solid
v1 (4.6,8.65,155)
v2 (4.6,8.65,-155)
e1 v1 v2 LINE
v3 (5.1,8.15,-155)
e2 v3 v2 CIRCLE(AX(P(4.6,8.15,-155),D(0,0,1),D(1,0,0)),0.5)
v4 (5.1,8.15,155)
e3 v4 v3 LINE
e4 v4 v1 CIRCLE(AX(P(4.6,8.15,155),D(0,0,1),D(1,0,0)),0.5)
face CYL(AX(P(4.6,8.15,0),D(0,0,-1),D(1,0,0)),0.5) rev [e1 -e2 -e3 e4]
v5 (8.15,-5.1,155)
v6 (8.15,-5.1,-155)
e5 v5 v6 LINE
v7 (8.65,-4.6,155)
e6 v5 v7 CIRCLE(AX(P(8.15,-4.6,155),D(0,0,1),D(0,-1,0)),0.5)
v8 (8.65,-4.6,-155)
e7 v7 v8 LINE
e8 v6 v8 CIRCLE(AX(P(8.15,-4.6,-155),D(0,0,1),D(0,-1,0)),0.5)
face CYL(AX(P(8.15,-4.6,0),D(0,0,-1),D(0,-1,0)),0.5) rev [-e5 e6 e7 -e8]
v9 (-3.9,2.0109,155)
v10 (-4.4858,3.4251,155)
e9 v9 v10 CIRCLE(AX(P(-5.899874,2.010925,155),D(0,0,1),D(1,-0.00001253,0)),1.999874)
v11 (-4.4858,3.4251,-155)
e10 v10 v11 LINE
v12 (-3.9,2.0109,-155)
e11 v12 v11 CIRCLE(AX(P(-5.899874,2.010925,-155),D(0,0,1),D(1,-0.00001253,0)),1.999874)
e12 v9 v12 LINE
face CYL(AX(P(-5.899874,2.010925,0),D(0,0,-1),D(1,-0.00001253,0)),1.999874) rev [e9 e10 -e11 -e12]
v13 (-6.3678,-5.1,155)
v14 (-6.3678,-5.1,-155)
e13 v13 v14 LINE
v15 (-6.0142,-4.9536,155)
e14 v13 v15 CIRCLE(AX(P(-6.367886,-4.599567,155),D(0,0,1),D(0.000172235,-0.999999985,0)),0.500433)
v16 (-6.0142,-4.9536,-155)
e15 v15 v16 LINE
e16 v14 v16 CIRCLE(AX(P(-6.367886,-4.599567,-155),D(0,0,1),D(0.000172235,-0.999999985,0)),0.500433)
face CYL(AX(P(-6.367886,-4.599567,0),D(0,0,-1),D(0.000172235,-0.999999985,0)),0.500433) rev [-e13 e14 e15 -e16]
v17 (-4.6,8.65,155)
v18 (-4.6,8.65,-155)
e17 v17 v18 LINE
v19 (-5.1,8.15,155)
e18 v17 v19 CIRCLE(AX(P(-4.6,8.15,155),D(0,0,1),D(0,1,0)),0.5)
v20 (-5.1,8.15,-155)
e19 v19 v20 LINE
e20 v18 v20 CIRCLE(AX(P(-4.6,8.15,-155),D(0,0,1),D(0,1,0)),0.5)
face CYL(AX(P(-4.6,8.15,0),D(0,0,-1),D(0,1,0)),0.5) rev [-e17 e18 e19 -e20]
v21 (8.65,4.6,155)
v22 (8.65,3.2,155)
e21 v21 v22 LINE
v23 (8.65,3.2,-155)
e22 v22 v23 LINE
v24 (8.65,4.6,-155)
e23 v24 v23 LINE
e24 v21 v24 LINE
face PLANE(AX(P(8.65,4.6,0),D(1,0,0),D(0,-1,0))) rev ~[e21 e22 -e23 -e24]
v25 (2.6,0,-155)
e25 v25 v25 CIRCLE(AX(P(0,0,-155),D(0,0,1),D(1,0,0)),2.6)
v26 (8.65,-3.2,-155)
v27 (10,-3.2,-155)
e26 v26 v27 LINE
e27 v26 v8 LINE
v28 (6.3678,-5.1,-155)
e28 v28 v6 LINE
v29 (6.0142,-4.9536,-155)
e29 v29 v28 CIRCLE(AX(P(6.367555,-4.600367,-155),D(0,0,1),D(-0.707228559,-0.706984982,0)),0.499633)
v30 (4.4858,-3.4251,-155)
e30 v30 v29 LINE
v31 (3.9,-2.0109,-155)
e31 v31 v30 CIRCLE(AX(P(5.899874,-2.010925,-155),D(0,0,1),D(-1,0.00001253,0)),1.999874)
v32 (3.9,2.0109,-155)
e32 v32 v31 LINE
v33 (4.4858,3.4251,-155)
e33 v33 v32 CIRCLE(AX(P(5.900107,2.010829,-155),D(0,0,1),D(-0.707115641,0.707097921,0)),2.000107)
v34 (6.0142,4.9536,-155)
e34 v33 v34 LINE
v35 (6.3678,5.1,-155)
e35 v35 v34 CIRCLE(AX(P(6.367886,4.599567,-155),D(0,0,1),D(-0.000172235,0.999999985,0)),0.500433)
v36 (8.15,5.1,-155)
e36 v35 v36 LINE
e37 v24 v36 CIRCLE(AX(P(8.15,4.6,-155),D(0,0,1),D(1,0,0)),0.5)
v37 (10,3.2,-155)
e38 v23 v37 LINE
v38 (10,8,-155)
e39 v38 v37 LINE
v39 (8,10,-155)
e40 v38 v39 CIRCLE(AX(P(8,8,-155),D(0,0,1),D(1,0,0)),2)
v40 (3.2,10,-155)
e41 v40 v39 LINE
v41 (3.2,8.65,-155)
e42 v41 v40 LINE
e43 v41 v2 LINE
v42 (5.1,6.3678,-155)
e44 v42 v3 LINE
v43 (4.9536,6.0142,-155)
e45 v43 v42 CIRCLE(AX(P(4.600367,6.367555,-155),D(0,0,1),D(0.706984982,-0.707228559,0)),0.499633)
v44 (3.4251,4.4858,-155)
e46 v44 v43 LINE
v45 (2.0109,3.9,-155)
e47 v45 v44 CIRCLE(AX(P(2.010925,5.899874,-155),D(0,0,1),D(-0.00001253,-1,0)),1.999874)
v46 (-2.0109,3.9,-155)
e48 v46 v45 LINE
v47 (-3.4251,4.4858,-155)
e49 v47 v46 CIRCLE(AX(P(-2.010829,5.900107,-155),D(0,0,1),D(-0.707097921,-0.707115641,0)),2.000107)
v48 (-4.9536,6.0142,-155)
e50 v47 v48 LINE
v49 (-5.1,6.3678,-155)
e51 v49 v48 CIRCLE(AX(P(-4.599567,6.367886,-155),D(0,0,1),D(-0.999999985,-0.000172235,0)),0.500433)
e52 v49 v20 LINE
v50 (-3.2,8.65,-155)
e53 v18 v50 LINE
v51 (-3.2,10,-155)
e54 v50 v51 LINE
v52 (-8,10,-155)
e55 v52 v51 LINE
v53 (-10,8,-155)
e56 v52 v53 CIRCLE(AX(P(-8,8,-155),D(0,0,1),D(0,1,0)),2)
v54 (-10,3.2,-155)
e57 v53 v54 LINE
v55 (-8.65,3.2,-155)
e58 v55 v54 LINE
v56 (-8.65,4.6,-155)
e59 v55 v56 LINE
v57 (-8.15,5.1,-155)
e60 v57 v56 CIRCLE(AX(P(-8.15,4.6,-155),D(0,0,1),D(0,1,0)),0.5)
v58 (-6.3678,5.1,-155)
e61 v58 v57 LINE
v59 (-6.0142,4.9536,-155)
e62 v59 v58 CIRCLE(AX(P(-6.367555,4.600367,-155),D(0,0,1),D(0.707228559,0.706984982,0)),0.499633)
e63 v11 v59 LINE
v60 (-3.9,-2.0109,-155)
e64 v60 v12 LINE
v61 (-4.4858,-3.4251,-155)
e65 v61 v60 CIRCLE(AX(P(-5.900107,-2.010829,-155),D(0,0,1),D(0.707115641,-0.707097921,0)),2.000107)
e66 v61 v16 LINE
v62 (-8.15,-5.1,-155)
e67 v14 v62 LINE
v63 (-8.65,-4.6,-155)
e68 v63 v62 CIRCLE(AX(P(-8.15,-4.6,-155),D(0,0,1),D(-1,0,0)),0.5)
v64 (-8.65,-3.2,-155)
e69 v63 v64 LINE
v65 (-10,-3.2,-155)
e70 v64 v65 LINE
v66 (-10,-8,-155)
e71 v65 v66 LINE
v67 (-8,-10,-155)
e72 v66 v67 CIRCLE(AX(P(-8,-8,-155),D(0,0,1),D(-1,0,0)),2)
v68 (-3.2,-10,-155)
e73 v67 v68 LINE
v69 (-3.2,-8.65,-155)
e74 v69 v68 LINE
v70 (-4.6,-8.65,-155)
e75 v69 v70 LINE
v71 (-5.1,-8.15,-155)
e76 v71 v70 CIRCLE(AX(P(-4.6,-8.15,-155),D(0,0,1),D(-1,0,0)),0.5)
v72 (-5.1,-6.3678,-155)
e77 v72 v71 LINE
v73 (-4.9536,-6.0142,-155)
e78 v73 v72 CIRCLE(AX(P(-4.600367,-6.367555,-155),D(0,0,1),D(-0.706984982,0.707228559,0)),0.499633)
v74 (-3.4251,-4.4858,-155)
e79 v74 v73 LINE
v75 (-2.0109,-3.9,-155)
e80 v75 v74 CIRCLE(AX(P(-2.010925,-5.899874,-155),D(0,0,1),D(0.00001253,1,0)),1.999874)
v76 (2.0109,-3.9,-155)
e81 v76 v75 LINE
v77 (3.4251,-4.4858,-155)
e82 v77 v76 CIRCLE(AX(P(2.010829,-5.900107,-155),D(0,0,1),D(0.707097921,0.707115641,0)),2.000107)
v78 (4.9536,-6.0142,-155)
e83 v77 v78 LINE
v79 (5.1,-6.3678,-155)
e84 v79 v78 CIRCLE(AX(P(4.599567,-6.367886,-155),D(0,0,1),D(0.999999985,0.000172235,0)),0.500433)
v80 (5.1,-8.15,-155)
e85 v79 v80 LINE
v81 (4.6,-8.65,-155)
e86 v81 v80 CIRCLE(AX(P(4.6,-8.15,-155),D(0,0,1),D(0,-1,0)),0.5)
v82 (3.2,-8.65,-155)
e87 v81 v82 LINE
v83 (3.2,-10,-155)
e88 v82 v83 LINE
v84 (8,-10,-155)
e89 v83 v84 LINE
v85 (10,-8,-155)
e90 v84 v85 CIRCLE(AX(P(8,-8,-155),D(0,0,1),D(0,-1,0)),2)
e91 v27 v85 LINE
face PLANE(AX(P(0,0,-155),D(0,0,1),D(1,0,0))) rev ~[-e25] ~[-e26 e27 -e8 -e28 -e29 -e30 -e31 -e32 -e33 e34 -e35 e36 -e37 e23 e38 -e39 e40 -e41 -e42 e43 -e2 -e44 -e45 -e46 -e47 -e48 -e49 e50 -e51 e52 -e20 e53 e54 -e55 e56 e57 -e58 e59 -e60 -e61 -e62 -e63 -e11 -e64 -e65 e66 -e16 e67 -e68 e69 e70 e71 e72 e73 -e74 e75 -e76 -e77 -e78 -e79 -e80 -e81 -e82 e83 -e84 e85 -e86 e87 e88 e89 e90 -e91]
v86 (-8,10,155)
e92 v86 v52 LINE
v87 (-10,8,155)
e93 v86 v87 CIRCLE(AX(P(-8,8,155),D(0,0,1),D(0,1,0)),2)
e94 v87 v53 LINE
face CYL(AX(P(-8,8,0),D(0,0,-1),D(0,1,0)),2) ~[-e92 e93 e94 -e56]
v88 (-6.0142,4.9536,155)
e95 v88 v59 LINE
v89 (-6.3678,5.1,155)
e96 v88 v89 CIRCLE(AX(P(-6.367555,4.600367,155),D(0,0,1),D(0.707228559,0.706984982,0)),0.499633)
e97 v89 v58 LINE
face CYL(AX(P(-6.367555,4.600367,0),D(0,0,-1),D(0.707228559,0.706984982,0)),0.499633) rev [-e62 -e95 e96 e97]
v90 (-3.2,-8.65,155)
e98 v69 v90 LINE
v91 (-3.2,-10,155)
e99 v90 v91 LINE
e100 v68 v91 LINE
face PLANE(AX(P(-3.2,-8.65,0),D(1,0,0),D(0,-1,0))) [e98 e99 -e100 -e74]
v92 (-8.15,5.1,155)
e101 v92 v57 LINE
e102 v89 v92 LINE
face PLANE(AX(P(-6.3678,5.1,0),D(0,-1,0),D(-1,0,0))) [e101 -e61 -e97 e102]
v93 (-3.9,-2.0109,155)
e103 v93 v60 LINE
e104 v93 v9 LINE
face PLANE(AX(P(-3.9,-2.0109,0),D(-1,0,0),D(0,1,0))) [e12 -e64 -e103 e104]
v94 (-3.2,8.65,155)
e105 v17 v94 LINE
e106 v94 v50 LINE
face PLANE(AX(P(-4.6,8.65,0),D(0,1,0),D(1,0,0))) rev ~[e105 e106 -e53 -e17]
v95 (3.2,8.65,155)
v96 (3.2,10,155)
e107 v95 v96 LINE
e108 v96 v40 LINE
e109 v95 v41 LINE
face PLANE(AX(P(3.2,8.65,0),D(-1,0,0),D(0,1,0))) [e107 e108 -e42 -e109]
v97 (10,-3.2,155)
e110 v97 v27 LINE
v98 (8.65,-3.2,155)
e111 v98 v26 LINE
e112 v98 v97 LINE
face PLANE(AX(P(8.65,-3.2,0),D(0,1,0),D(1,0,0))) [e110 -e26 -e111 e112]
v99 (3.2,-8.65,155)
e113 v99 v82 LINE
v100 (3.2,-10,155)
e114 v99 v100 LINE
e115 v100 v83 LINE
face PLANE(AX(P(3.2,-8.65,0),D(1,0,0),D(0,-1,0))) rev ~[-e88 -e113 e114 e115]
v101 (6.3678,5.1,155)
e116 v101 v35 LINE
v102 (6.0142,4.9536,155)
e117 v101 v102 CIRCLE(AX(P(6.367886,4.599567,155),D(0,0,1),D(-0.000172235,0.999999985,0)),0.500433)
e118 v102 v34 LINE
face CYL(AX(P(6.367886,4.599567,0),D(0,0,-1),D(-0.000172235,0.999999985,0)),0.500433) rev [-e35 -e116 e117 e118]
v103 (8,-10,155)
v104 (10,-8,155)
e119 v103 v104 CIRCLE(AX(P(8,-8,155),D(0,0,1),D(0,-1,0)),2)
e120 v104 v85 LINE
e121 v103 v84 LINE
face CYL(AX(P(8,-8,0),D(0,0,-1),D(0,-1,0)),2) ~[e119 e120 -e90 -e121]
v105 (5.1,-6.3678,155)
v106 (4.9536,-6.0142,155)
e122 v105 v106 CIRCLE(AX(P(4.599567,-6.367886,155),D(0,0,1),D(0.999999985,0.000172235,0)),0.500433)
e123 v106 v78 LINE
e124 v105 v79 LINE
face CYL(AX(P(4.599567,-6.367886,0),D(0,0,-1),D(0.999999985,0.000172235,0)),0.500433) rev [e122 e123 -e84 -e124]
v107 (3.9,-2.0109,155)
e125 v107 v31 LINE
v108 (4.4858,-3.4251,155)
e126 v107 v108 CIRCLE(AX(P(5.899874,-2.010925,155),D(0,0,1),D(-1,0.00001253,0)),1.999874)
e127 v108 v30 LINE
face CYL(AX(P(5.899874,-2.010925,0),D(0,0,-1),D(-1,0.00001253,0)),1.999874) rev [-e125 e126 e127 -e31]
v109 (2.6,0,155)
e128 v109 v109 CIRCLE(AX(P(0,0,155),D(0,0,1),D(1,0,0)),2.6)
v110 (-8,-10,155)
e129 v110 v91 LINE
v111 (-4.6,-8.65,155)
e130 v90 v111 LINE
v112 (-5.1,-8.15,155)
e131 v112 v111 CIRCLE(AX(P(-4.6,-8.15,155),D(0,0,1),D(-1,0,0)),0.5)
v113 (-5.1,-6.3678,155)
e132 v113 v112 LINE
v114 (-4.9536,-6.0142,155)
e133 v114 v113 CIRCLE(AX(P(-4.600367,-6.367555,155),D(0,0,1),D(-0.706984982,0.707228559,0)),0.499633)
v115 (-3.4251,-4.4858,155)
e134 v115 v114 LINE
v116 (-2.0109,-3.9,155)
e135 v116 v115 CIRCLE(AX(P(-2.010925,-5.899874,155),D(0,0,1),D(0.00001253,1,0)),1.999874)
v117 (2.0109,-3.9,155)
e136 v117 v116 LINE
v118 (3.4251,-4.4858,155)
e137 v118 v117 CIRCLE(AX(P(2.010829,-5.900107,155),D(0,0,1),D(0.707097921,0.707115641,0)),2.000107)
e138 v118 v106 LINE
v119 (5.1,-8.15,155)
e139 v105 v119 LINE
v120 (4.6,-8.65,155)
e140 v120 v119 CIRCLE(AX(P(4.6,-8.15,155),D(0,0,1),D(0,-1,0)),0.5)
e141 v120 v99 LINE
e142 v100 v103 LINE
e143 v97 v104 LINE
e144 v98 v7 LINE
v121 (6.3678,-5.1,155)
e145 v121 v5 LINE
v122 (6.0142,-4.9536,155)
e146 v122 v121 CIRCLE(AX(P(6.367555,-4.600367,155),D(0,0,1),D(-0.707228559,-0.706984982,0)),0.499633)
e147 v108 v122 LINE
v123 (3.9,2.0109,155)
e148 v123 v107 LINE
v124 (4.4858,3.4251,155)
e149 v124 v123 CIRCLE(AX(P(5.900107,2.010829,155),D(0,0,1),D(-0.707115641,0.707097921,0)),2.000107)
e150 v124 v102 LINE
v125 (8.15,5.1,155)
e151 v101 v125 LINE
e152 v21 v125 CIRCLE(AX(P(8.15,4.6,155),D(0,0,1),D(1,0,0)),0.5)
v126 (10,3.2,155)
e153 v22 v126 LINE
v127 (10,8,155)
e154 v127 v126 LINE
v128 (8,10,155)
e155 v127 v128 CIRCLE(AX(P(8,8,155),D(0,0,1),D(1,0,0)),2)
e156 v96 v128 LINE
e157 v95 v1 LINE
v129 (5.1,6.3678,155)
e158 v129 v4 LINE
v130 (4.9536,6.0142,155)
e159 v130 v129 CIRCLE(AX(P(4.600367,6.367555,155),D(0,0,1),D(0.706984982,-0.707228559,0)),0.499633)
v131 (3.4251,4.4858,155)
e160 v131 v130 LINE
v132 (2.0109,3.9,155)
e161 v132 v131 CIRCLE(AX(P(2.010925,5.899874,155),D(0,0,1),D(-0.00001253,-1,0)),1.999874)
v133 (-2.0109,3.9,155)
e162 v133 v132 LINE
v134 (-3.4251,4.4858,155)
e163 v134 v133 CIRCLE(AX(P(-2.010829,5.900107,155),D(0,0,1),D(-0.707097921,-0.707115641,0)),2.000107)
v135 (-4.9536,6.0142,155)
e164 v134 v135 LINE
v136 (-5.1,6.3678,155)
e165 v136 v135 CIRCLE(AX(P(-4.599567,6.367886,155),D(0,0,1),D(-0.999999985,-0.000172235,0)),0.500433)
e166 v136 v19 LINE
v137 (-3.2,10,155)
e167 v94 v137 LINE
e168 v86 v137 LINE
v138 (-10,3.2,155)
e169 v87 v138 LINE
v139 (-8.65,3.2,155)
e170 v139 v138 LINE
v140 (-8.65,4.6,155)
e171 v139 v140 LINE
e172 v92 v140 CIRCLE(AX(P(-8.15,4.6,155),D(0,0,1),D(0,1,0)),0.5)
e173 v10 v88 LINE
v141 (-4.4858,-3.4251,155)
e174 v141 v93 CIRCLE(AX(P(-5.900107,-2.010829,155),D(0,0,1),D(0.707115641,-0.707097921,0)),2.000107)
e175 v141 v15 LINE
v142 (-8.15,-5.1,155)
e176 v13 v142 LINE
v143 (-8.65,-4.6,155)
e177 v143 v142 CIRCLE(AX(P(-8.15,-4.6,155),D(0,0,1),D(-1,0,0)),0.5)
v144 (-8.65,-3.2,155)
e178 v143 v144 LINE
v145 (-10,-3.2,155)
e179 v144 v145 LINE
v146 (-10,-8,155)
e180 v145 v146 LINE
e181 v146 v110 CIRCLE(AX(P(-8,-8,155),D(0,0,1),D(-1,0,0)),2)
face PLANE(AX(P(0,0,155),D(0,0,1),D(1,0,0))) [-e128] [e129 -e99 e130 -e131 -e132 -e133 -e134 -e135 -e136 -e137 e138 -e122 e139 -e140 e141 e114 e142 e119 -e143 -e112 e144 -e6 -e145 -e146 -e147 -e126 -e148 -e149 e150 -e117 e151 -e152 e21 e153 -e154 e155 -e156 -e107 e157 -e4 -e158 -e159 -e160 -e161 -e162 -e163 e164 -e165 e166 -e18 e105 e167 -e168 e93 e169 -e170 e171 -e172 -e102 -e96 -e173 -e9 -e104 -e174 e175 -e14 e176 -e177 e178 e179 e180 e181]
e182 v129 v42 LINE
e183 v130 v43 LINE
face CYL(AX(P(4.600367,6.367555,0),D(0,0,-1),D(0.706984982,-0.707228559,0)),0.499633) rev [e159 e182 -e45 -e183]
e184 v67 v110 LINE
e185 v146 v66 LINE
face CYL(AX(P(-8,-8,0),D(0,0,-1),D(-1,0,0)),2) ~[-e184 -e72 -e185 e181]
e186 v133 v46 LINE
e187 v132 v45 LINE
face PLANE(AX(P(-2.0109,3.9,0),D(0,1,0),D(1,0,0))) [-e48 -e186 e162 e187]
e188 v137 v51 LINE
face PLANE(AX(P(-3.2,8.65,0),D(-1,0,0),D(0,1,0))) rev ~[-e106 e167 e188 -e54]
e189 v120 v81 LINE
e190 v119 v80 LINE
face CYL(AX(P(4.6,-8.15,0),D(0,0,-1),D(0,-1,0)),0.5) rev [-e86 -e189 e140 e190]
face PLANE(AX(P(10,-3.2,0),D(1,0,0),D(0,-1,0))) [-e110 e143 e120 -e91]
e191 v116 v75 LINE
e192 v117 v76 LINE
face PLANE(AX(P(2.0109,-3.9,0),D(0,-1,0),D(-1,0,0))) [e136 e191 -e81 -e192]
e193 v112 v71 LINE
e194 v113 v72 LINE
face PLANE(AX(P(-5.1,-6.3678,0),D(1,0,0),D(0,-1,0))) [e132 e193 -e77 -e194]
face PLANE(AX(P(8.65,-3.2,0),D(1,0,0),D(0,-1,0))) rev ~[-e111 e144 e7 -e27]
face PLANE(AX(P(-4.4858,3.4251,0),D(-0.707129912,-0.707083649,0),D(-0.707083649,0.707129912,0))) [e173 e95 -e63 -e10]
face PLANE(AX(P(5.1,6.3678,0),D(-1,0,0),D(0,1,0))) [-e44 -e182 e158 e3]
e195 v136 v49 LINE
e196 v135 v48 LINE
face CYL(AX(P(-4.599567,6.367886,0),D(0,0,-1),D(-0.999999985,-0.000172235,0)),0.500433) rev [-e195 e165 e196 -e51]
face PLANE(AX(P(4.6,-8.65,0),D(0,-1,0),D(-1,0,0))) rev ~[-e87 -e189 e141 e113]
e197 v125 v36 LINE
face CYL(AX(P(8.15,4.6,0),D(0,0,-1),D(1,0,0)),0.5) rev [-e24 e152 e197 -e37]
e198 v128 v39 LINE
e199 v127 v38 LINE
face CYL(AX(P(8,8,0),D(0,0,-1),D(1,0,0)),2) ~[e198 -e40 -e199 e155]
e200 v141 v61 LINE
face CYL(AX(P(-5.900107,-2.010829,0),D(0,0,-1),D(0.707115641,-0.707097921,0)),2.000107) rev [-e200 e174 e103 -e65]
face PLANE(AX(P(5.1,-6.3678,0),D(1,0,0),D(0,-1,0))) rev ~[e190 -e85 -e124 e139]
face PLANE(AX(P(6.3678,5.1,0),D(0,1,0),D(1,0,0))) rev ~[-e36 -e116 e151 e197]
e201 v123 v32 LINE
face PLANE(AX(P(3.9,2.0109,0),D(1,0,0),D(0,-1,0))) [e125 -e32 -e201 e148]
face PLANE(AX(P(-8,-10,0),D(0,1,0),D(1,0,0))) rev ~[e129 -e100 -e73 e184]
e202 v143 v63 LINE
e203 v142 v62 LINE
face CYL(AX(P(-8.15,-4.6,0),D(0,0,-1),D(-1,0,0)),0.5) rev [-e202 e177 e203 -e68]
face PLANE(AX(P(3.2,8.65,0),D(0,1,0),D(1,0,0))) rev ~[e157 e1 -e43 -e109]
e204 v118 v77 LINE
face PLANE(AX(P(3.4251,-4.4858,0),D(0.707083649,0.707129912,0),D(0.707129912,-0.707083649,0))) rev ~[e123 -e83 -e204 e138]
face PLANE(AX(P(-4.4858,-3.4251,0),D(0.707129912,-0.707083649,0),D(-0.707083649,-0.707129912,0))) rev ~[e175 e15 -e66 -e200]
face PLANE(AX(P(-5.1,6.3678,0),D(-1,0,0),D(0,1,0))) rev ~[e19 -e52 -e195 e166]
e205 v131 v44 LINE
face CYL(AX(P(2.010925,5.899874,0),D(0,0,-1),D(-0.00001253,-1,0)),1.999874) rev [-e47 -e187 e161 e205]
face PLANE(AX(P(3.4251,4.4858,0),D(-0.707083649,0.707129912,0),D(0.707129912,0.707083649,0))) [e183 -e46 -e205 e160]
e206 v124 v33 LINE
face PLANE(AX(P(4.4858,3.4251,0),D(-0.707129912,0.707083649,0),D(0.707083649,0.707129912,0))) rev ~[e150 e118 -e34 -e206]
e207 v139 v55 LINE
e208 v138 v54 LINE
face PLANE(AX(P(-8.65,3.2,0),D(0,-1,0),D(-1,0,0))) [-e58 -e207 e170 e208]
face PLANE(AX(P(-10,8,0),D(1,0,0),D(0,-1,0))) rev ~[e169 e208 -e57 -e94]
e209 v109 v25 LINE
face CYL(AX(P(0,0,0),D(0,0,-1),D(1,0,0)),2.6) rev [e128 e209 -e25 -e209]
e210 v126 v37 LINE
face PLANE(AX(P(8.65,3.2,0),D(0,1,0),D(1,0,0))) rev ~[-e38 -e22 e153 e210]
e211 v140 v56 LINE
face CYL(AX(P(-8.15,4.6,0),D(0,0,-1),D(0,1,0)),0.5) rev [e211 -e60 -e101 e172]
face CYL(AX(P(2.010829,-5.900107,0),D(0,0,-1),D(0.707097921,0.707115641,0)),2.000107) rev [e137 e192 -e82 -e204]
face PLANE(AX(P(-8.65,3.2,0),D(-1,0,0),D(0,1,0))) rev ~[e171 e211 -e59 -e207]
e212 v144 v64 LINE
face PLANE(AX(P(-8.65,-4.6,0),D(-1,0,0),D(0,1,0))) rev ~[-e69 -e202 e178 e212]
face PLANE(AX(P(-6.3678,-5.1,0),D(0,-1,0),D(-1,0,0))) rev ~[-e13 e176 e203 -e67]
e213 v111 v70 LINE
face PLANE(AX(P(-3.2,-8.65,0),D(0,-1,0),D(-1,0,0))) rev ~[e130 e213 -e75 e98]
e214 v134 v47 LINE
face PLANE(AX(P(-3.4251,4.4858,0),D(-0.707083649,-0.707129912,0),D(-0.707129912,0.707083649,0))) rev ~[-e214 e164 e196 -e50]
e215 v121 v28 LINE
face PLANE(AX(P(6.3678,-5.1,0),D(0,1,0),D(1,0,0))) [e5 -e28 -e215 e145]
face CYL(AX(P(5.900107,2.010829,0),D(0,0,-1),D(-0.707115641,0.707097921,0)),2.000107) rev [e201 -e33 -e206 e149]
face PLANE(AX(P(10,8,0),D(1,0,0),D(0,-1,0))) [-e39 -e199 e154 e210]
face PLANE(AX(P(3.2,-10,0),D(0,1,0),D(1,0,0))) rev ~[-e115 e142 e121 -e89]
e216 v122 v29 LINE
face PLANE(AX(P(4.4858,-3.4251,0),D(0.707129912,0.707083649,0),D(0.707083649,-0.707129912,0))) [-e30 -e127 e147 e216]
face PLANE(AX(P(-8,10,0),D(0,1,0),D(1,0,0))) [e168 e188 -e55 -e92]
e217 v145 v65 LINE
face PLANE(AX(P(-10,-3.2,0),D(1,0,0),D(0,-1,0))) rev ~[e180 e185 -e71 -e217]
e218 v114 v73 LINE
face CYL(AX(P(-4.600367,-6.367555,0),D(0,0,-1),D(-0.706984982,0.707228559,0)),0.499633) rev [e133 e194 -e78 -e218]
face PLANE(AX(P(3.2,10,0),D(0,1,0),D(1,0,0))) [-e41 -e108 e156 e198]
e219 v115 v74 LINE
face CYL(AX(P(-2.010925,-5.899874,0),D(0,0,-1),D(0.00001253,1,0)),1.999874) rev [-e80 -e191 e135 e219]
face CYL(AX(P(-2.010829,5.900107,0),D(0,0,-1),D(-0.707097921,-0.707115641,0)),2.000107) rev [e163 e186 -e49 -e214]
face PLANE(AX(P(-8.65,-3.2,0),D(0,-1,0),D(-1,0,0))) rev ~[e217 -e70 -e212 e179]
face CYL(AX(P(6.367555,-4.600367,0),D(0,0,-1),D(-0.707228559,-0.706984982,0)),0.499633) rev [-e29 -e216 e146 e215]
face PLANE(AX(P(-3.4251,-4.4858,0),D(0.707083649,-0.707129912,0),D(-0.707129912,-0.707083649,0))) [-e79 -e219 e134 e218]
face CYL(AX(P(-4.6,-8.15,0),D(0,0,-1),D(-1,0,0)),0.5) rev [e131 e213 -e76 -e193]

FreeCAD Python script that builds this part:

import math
import FreeCAD as App
import Part
import Sketcher

doc = App.newDocument("Part")
params = doc.addObject("Spreadsheet::Sheet", "Params")
for row, (alias, value) in enumerate([
    ("sketch1_radius", "2 mm"),
    ("sketch1_diameter", "5.2 mm"),
    ("sketch1_radius2", "0.5 mm"),
    ("sketch1_width", "1.35 mm"),
    ("pad1_length", "310 mm"),
], start=1):
    params.set(f"A{row}", alias)
    params.set(f"B{row}", "=" + value)
    params.setAlias(f"B{row}", alias)

body = doc.addObject("PartDesign::Body", "Body")

# Sketch on XY plane
sketch1 = body.newObject("Sketcher::SketchObject", "Sketch")
sketch1.AttachmentSupport = (doc.getObject("XY_Plane"), [""])
sketch1.MapMode = "FlatFace"
sketch1.addGeometry(Part.ArcOfCircle(Part.Circle(App.Vector(-8, -8, 0), App.Vector(0, 0, 1), 2), math.radians(180), math.radians(270)), False)
sketch1.addGeometry(Part.LineSegment(App.Vector(-8, -10, 0), App.Vector(-3.2, -10, 0)), False)
sketch1.addGeometry(Part.LineSegment(App.Vector(-3.2, -10, 0), App.Vector(-3.2, -8.65, 0)), False)
sketch1.addGeometry(Part.LineSegment(App.Vector(-3.2, -8.65, 0), App.Vector(-4.6, -8.65, 0)), False)
sketch1.addGeometry(Part.ArcOfCircle(Part.Circle(App.Vector(-4.6, -8.15, 0), App.Vector(0, 0, 1), 0.5), math.radians(180), math.radians(270)), False)
sketch1.addGeometry(Part.LineSegment(App.Vector(-5.1, -8.15, 0), App.Vector(-5.1, -6.3678, 0)), False)
sketch1.addGeometry(Part.ArcOfCircle(Part.Circle(App.Vector(-4.6, -6.3678, 0), App.Vector(0, 0, 1), 0.500066), math.radians(135), math.radians(180)), False)
sketch1.addGeometry(Part.LineSegment(App.Vector(-4.9536, -6.0142, 0), App.Vector(-3.4251, -4.4858, 0)), False)
sketch1.addGeometry(Part.ArcOfCircle(Part.Circle(App.Vector(-2.0109, -5.9, 0), App.Vector(0, 0, 1), 2), math.radians(90), math.radians(135)), False)
sketch1.addGeometry(Part.LineSegment(App.Vector(-2.0109, -3.9, 0), App.Vector(2.0109, -3.9, 0)), False)
sketch1.addGeometry(Part.ArcOfCircle(Part.Circle(App.Vector(2.0109, -5.9, 0), App.Vector(0, 0, 1), 1.999981), math.radians(45), math.radians(90)), False)
sketch1.addGeometry(Part.LineSegment(App.Vector(3.4251, -4.4858, 0), App.Vector(4.9536, -6.0142, 0)), False)
sketch1.addGeometry(Part.ArcOfCircle(Part.Circle(App.Vector(4.6, -6.3678, 0), App.Vector(0, 0, 1), 0.5), math.radians(0), math.radians(45)), False)
sketch1.addGeometry(Part.LineSegment(App.Vector(5.1, -6.3678, 0), App.Vector(5.1, -8.15, 0)), False)
sketch1.addGeometry(Part.ArcOfCircle(Part.Circle(App.Vector(4.6, -8.15, 0), App.Vector(0, 0, 1), 0.5), math.radians(-90), math.radians(0)), False)
sketch1.addGeometry(Part.LineSegment(App.Vector(4.6, -8.65, 0), App.Vector(3.2, -8.65, 0)), False)
sketch1.addGeometry(Part.LineSegment(App.Vector(3.2, -8.65, 0), App.Vector(3.2, -10, 0)), False)
sketch1.addGeometry(Part.LineSegment(App.Vector(3.2, -10, 0), App.Vector(8, -10, 0)), False)
sketch1.addGeometry(Part.ArcOfCircle(Part.Circle(App.Vector(8, -8, 0), App.Vector(0, 0, 1), 2), math.radians(-90), math.radians(0)), False)
sketch1.addGeometry(Part.LineSegment(App.Vector(10, -8, 0), App.Vector(10, -3.2, 0)), False)
sketch1.addGeometry(Part.LineSegment(App.Vector(10, -3.2, 0), App.Vector(8.65, -3.2, 0)), False)
sketch1.addGeometry(Part.LineSegment(App.Vector(8.65, -3.2, 0), App.Vector(8.65, -4.6, 0)), False)
sketch1.addGeometry(Part.ArcOfCircle(Part.Circle(App.Vector(8.15, -4.6, 0), App.Vector(0, 0, 1), 0.5), math.radians(-90), math.radians(0)), False)
sketch1.addGeometry(Part.LineSegment(App.Vector(8.15, -5.1, 0), App.Vector(6.3678, -5.1, 0)), False)
sketch1.addGeometry(Part.ArcOfCircle(Part.Circle(App.Vector(6.3678, -4.6, 0), App.Vector(0, 0, 1), 0.500066), math.radians(-135), math.radians(-90)), False)
sketch1.addGeometry(Part.LineSegment(App.Vector(6.0142, -4.9536, 0), App.Vector(4.4858, -3.4251, 0)), False)
sketch1.addGeometry(Part.ArcOfCircle(Part.Circle(App.Vector(5.9, -2.0109, 0), App.Vector(0, 0, 1), 2), math.radians(180), math.radians(225)), False)
sketch1.addGeometry(Part.LineSegment(App.Vector(3.9, -2.0109, 0), App.Vector(3.9, 2.0109, 0)), False)
sketch1.addGeometry(Part.ArcOfCircle(Part.Circle(App.Vector(5.9, 2.0109, 0), App.Vector(0, 0, 1), 1.999981), math.radians(135), math.radians(180)), False)
sketch1.addGeometry(Part.LineSegment(App.Vector(4.4858, 3.4251, 0), App.Vector(6.0142, 4.9536, 0)), False)
sketch1.addGeometry(Part.ArcOfCircle(Part.Circle(App.Vector(6.3678, 4.6, 0), App.Vector(0, 0, 1), 0.5), math.radians(90), math.radians(135)), False)
sketch1.addGeometry(Part.LineSegment(App.Vector(6.3678, 5.1, 0), App.Vector(8.15, 5.1, 0)), False)
sketch1.addGeometry(Part.ArcOfCircle(Part.Circle(App.Vector(8.15, 4.6, 0), App.Vector(0, 0, 1), 0.5), math.radians(0), math.radians(90)), False)
sketch1.addGeometry(Part.LineSegment(App.Vector(8.65, 4.6, 0), App.Vector(8.65, 3.2, 0)), False)
sketch1.addGeometry(Part.LineSegment(App.Vector(8.65, 3.2, 0), App.Vector(10, 3.2, 0)), False)
sketch1.addGeometry(Part.LineSegment(App.Vector(10, 3.2, 0), App.Vector(10, 8, 0)), False)
sketch1.addGeometry(Part.ArcOfCircle(Part.Circle(App.Vector(8, 8, 0), App.Vector(0, 0, 1), 2), math.radians(0), math.radians(90)), False)
sketch1.addGeometry(Part.LineSegment(App.Vector(8, 10, 0), App.Vector(3.2, 10, 0)), False)
sketch1.addGeometry(Part.LineSegment(App.Vector(3.2, 10, 0), App.Vector(3.2, 8.65, 0)), False)
sketch1.addGeometry(Part.LineSegment(App.Vector(3.2, 8.65, 0), App.Vector(4.6, 8.65, 0)), False)
sketch1.addGeometry(Part.ArcOfCircle(Part.Circle(App.Vector(4.6, 8.15, 0), App.Vector(0, 0, 1), 0.5), math.radians(0), math.radians(90)), False)
sketch1.addGeometry(Part.LineSegment(App.Vector(5.1, 8.15, 0), App.Vector(5.1, 6.3678, 0)), False)
sketch1.addGeometry(Part.ArcOfCircle(Part.Circle(App.Vector(4.6, 6.3678, 0), App.Vector(0, 0, 1), 0.500066), math.radians(-45), math.radians(0)), False)
sketch1.addGeometry(Part.LineSegment(App.Vector(4.9536, 6.0142, 0), App.Vector(3.4251, 4.4858, 0)), False)
sketch1.addGeometry(Part.ArcOfCircle(Part.Circle(App.Vector(2.0109, 5.9, 0), App.Vector(0, 0, 1), 2), math.radians(-90), math.radians(-45)), False)
sketch1.addGeometry(Part.LineSegment(App.Vector(2.0109, 3.9, 0), App.Vector(-2.0109, 3.9, 0)), False)
sketch1.addGeometry(Part.ArcOfCircle(Part.Circle(App.Vector(-2.0109, 5.9, 0), App.Vector(0, 0, 1), 1.999981), math.radians(-135), math.radians(-90)), False)
sketch1.addGeometry(Part.LineSegment(App.Vector(-3.4251, 4.4858, 0), App.Vector(-4.9536, 6.0142, 0)), False)
sketch1.addGeometry(Part.ArcOfCircle(Part.Circle(App.Vector(-4.6, 6.3678, 0), App.Vector(0, 0, 1), 0.5), math.radians(180), math.radians(225)), False)
sketch1.addGeometry(Part.LineSegment(App.Vector(-5.1, 6.3678, 0), App.Vector(-5.1, 8.15, 0)), False)
sketch1.addGeometry(Part.ArcOfCircle(Part.Circle(App.Vector(-4.6, 8.15, 0), App.Vector(0, 0, 1), 0.5), math.radians(90), math.radians(180)), False)
sketch1.addGeometry(Part.LineSegment(App.Vector(-4.6, 8.65, 0), App.Vector(-3.2, 8.65, 0)), False)
sketch1.addGeometry(Part.LineSegment(App.Vector(-3.2, 8.65, 0), App.Vector(-3.2, 10, 0)), False)
sketch1.addGeometry(Part.LineSegment(App.Vector(-3.2, 10, 0), App.Vector(-8, 10, 0)), False)
sketch1.addGeometry(Part.ArcOfCircle(Part.Circle(App.Vector(-8, 8, 0), App.Vector(0, 0, 1), 2), math.radians(90), math.radians(180)), False)
sketch1.addGeometry(Part.LineSegment(App.Vector(-10, 8, 0), App.Vector(-10, 3.2, 0)), False)
sketch1.addGeometry(Part.LineSegment(App.Vector(-10, 3.2, 0), App.Vector(-8.65, 3.2, 0)), False)
sketch1.addGeometry(Part.LineSegment(App.Vector(-8.65, 3.2, 0), App.Vector(-8.65, 4.6, 0)), False)
sketch1.addGeometry(Part.ArcOfCircle(Part.Circle(App.Vector(-8.15, 4.6, 0), App.Vector(0, 0, 1), 0.5), math.radians(90), math.radians(180)), False)
sketch1.addGeometry(Part.LineSegment(App.Vector(-8.15, 5.1, 0), App.Vector(-6.3678, 5.1, 0)), False)
sketch1.addGeometry(Part.ArcOfCircle(Part.Circle(App.Vector(-6.3678, 4.6, 0), App.Vector(0, 0, 1), 0.500066), math.radians(45), math.radians(90)), False)
sketch1.addGeometry(Part.LineSegment(App.Vector(-6.0142, 4.9536, 0), App.Vector(-4.4858, 3.4251, 0)), False)
sketch1.addGeometry(Part.ArcOfCircle(Part.Circle(App.Vector(-5.9, 2.0109, 0), App.Vector(0, 0, 1), 2), math.radians(0), math.radians(45)), False)
sketch1.addGeometry(Part.LineSegment(App.Vector(-3.9, 2.0109, 0), App.Vector(-3.9, -2.0109, 0)), False)
sketch1.addGeometry(Part.ArcOfCircle(Part.Circle(App.Vector(-5.9, -2.0109, 0), App.Vector(0, 0, 1), 1.999981), math.radians(-45), math.radians(0)), False)
sketch1.addGeometry(Part.LineSegment(App.Vector(-4.4858, -3.4251, 0), App.Vector(-6.0142, -4.9536, 0)), False)
sketch1.addGeometry(Part.ArcOfCircle(Part.Circle(App.Vector(-6.3678, -4.6, 0), App.Vector(0, 0, 1), 0.5), math.radians(-90), math.radians(-45)), False)
sketch1.addGeometry(Part.LineSegment(App.Vector(-6.3678, -5.1, 0), App.Vector(-8.15, -5.1, 0)), False)
sketch1.addGeometry(Part.ArcOfCircle(Part.Circle(App.Vector(-8.15, -4.6, 0), App.Vector(0, 0, 1), 0.5), math.radians(180), math.radians(270)), False)
sketch1.addGeometry(Part.LineSegment(App.Vector(-8.65, -4.6, 0), App.Vector(-8.65, -3.2, 0)), False)
sketch1.addGeometry(Part.LineSegment(App.Vector(-8.65, -3.2, 0), App.Vector(-10, -3.2, 0)), False)
sketch1.addGeometry(Part.LineSegment(App.Vector(-10, -3.2, 0), App.Vector(-10, -8, 0)), False)
sketch1.addGeometry(Part.Circle(App.Vector(0, 0, 0), App.Vector(0, 0, 1), 2.6), False)
sketch1.addConstraint(Sketcher.Constraint("Tangent", 0, 2, 1, 1))
sketch1.addConstraint(Sketcher.Constraint("Coincident", 1, 2, 2, 1))
sketch1.addConstraint(Sketcher.Constraint("Coincident", 2, 2, 3, 1))
sketch1.addConstraint(Sketcher.Constraint("Tangent", 3, 2, 4, 2))
sketch1.addConstraint(Sketcher.Constraint("Tangent", 4, 1, 5, 1))
sketch1.addConstraint(Sketcher.Constraint("Tangent", 5, 2, 6, 2))
sketch1.addConstraint(Sketcher.Constraint("Tangent", 6, 1, 7, 1))
sketch1.addConstraint(Sketcher.Constraint("Tangent", 7, 2, 8, 2))
sketch1.addConstraint(Sketcher.Constraint("Tangent", 8, 1, 9, 1))
sketch1.addConstraint(Sketcher.Constraint("Tangent", 9, 2, 10, 2))
sketch1.addConstraint(Sketcher.Constraint("Tangent", 10, 1, 11, 1))
sketch1.addConstraint(Sketcher.Constraint("Tangent", 11, 2, 12, 2))
sketch1.addConstraint(Sketcher.Constraint("Tangent", 12, 1, 13, 1))
sketch1.addConstraint(Sketcher.Constraint("Tangent", 13, 2, 14, 2))
sketch1.addConstraint(Sketcher.Constraint("Tangent", 14, 1, 15, 1))
sketch1.addConstraint(Sketcher.Constraint("Coincident", 15, 2, 16, 1))
sketch1.addConstraint(Sketcher.Constraint("Coincident", 16, 2, 17, 1))
sketch1.addConstraint(Sketcher.Constraint("Tangent", 17, 2, 18, 1))
sketch1.addConstraint(Sketcher.Constraint("Tangent", 18, 2, 19, 1))
sketch1.addConstraint(Sketcher.Constraint("Coincident", 19, 2, 20, 1))
sketch1.addConstraint(Sketcher.Constraint("Coincident", 20, 2, 21, 1))
sketch1.addConstraint(Sketcher.Constraint("Tangent", 21, 2, 22, 2))
sketch1.addConstraint(Sketcher.Constraint("Tangent", 22, 1, 23, 1))
sketch1.addConstraint(Sketcher.Constraint("Tangent", 23, 2, 24, 2))
sketch1.addConstraint(Sketcher.Constraint("Tangent", 24, 1, 25, 1))
sketch1.addConstraint(Sketcher.Constraint("Tangent", 25, 2, 26, 2))
sketch1.addConstraint(Sketcher.Constraint("Tangent", 26, 1, 27, 1))
sketch1.addConstraint(Sketcher.Constraint("Tangent", 27, 2, 28, 2))
sketch1.addConstraint(Sketcher.Constraint("Tangent", 28, 1, 29, 1))
sketch1.addConstraint(Sketcher.Constraint("Tangent", 29, 2, 30, 2))
sketch1.addConstraint(Sketcher.Constraint("Tangent", 30, 1, 31, 1))
sketch1.addConstraint(Sketcher.Constraint("Tangent", 31, 2, 32, 2))
sketch1.addConstraint(Sketcher.Constraint("Tangent", 32, 1, 33, 1))
sketch1.addConstraint(Sketcher.Constraint("Coincident", 33, 2, 34, 1))
sketch1.addConstraint(Sketcher.Constraint("Coincident", 34, 2, 35, 1))
sketch1.addConstraint(Sketcher.Constraint("Tangent", 35, 2, 36, 1))
sketch1.addConstraint(Sketcher.Constraint("Tangent", 36, 2, 37, 1))
sketch1.addConstraint(Sketcher.Constraint("Coincident", 37, 2, 38, 1))
sketch1.addConstraint(Sketcher.Constraint("Coincident", 38, 2, 39, 1))
sketch1.addConstraint(Sketcher.Constraint("Tangent", 39, 2, 40, 2))
sketch1.addConstraint(Sketcher.Constraint("Tangent", 40, 1, 41, 1))
sketch1.addConstraint(Sketcher.Constraint("Tangent", 41, 2, 42, 2))
sketch1.addConstraint(Sketcher.Constraint("Tangent", 42, 1, 43, 1))
sketch1.addConstraint(Sketcher.Constraint("Tangent", 43, 2, 44, 2))
sketch1.addConstraint(Sketcher.Constraint("Tangent", 44, 1, 45, 1))
sketch1.addConstraint(Sketcher.Constraint("Tangent", 45, 2, 46, 2))
sketch1.addConstraint(Sketcher.Constraint("Tangent", 46, 1, 47, 1))
sketch1.addConstraint(Sketcher.Constraint("Tangent", 47, 2, 48, 2))
sketch1.addConstraint(Sketcher.Constraint("Tangent", 48, 1, 49, 1))
sketch1.addConstraint(Sketcher.Constraint("Tangent", 49, 2, 50, 2))
sketch1.addConstraint(Sketcher.Constraint("Tangent", 50, 1, 51, 1))
sketch1.addConstraint(Sketcher.Constraint("Coincident", 51, 2, 52, 1))
sketch1.addConstraint(Sketcher.Constraint("Coincident", 52, 2, 53, 1))
sketch1.addConstraint(Sketcher.Constraint("Tangent", 53, 2, 54, 1))
sketch1.addConstraint(Sketcher.Constraint("Tangent", 54, 2, 55, 1))
sketch1.addConstraint(Sketcher.Constraint("Coincident", 55, 2, 56, 1))
sketch1.addConstraint(Sketcher.Constraint("Coincident", 56, 2, 57, 1))
sketch1.addConstraint(Sketcher.Constraint("Tangent", 57, 2, 58, 2))
sketch1.addConstraint(Sketcher.Constraint("Tangent", 58, 1, 59, 1))
sketch1.addConstraint(Sketcher.Constraint("Tangent", 59, 2, 60, 2))
sketch1.addConstraint(Sketcher.Constraint("Tangent", 60, 1, 61, 1))
sketch1.addConstraint(Sketcher.Constraint("Tangent", 61, 2, 62, 2))
sketch1.addConstraint(Sketcher.Constraint("Tangent", 62, 1, 63, 1))
sketch1.addConstraint(Sketcher.Constraint("Tangent", 63, 2, 64, 2))
sketch1.addConstraint(Sketcher.Constraint("Tangent", 64, 1, 65, 1))
sketch1.addConstraint(Sketcher.Constraint("Tangent", 65, 2, 66, 2))
sketch1.addConstraint(Sketcher.Constraint("Tangent", 66, 1, 67, 1))
sketch1.addConstraint(Sketcher.Constraint("Tangent", 67, 2, 68, 2))
sketch1.addConstraint(Sketcher.Constraint("Tangent", 68, 1, 69, 1))
sketch1.addConstraint(Sketcher.Constraint("Coincident", 69, 2, 70, 1))
sketch1.addConstraint(Sketcher.Constraint("Coincident", 70, 2, 71, 1))
sketch1.addConstraint(Sketcher.Constraint("Tangent", 71, 2, 0, 1))
sketch1.addConstraint(Sketcher.Constraint("Horizontal", 1))
sketch1.addConstraint(Sketcher.Constraint("Vertical", 2))
sketch1.addConstraint(Sketcher.Constraint("Horizontal", 3))
sketch1.addConstraint(Sketcher.Constraint("Vertical", 5))
sketch1.addConstraint(Sketcher.Constraint("Horizontal", 9))
sketch1.addConstraint(Sketcher.Constraint("Vertical", 13))
sketch1.addConstraint(Sketcher.Constraint("Horizontal", 15))
sketch1.addConstraint(Sketcher.Constraint("Vertical", 16))
sketch1.addConstraint(Sketcher.Constraint("Horizontal", 17))
sketch1.addConstraint(Sketcher.Constraint("Vertical", 19))
sketch1.addConstraint(Sketcher.Constraint("Horizontal", 20))
sketch1.addConstraint(Sketcher.Constraint("Vertical", 21))
sketch1.addConstraint(Sketcher.Constraint("Horizontal", 23))
sketch1.addConstraint(Sketcher.Constraint("Vertical", 27))
sketch1.addConstraint(Sketcher.Constraint("Horizontal", 31))
sketch1.addConstraint(Sketcher.Constraint("Vertical", 33))
sketch1.addConstraint(Sketcher.Constraint("Horizontal", 34))
sketch1.addConstraint(Sketcher.Constraint("Vertical", 35))
sketch1.addConstraint(Sketcher.Constraint("Horizontal", 37))
sketch1.addConstraint(Sketcher.Constraint("Vertical", 38))
sketch1.addConstraint(Sketcher.Constraint("Horizontal", 39))
sketch1.addConstraint(Sketcher.Constraint("Vertical", 41))
sketch1.addConstraint(Sketcher.Constraint("Horizontal", 45))
sketch1.addConstraint(Sketcher.Constraint("Vertical", 49))
sketch1.addConstraint(Sketcher.Constraint("Horizontal", 51))
sketch1.addConstraint(Sketcher.Constraint("Vertical", 52))
sketch1.addConstraint(Sketcher.Constraint("Horizontal", 53))
sketch1.addConstraint(Sketcher.Constraint("Vertical", 55))
sketch1.addConstraint(Sketcher.Constraint("Horizontal", 56))
sketch1.addConstraint(Sketcher.Constraint("Vertical", 57))
sketch1.addConstraint(Sketcher.Constraint("Horizontal", 59))
sketch1.addConstraint(Sketcher.Constraint("Vertical", 63))
sketch1.addConstraint(Sketcher.Constraint("Horizontal", 67))
sketch1.addConstraint(Sketcher.Constraint("Vertical", 69))
sketch1.addConstraint(Sketcher.Constraint("Horizontal", 70))
sketch1.addConstraint(Sketcher.Constraint("Vertical", 71))
sketch1.addConstraint(Sketcher.Constraint("Coincident", 72, 3, -1, 1))
sketch1.addConstraint(Sketcher.Constraint("Equal", 4, 6))
sketch1.addConstraint(Sketcher.Constraint("Equal", 0, 8))
sketch1.addConstraint(Sketcher.Constraint("Equal", 8, 10))
sketch1.addConstraint(Sketcher.Constraint("Equal", 6, 12))
sketch1.addConstraint(Sketcher.Constraint("Equal", 12, 14))
sketch1.addConstraint(Sketcher.Constraint("Equal", 10, 18))
sketch1.addConstraint(Sketcher.Constraint("Equal", 14, 22))
sketch1.addConstraint(Sketcher.Constraint("Equal", 22, 24))
sketch1.addConstraint(Sketcher.Constraint("Equal", 18, 26))
sketch1.addConstraint(Sketcher.Constraint("Equal", 26, 28))
sketch1.addConstraint(Sketcher.Constraint("Equal", 24, 30))
sketch1.addConstraint(Sketcher.Constraint("Equal", 30, 32))
sketch1.addConstraint(Sketcher.Constraint("Equal", 28, 36))
sketch1.addConstraint(Sketcher.Constraint("Equal", 32, 40))
sketch1.addConstraint(Sketcher.Constraint("Equal", 40, 42))
sketch1.addConstraint(Sketcher.Constraint("Equal", 36, 44))
sketch1.addConstraint(Sketcher.Constraint("Equal", 44, 46))
sketch1.addConstraint(Sketcher.Constraint("Equal", 42, 48))
sketch1.addConstraint(Sketcher.Constraint("Equal", 48, 50))
sketch1.addConstraint(Sketcher.Constraint("Equal", 46, 54))
sketch1.addConstraint(Sketcher.Constraint("Equal", 50, 58))
sketch1.addConstraint(Sketcher.Constraint("Equal", 58, 60))
sketch1.addConstraint(Sketcher.Constraint("Equal", 54, 62))
sketch1.addConstraint(Sketcher.Constraint("Equal", 62, 64))
sketch1.addConstraint(Sketcher.Constraint("Equal", 60, 66))
sketch1.addConstraint(Sketcher.Constraint("Equal", 66, 68))
sketch1.addConstraint(Sketcher.Constraint("Symmetric", 0, 3, 36, 3, -1, 1))
sketch1.addConstraint(Sketcher.Constraint("Symmetric", 4, 3, 40, 3, -1, 1))
sketch1.addConstraint(Sketcher.Constraint("Symmetric", 8, 3, 44, 3, -1, 1))
sketch1.addConstraint(Sketcher.Constraint("Symmetric", 12, 3, 48, 3, -1, 1))
sketch1.addConstraint(Sketcher.Constraint("Symmetric", 18, 3, 54, 3, -1, 1))
sketch1.addConstraint(Sketcher.Constraint("Symmetric", 22, 3, 58, 3, -1, 1))
sketch1.addConstraint(Sketcher.Constraint("Symmetric", 26, 3, 62, 3, -1, 1))
sketch1.addConstraint(Sketcher.Constraint("Symmetric", 30, 3, 66, 3, -1, 1))
sketch1.addConstraint(Sketcher.Constraint("Symmetric", 15, 2, 51, 2, -1, 1))
sketch1.addConstraint(Sketcher.Constraint("Symmetric", 33, 2, 69, 2, -1, 1))
sketch1.addConstraint(Sketcher.Constraint("Symmetric", 6, 3, 12, 3, -2))
sketch1.addConstraint(Sketcher.Constraint("Symmetric", 0, 3, 18, 3, -2))
sketch1.addConstraint(Sketcher.Constraint("Symmetric", 32, 3, 58, 3, -2))
sketch1.addConstraint(Sketcher.Constraint("Symmetric", 2, 2, 15, 2, -2))
sketch1.addConstraint(Sketcher.Constraint("Symmetric", 43, 2, 46, 1, -2))
sketch1.addConstraint(Sketcher.Constraint("Symmetric", 29, 2, 60, 1, -2))
sketch1.addConstraint(Sketcher.Constraint("Symmetric", 25, 2, 64, 1, -2))
sketch1.addConstraint(Sketcher.Constraint("Perpendicular", 7, 11))
sketch1.addConstraint(Sketcher.Constraint("Parallel", 11, 25))
sketch1.addConstraint(Sketcher.Constraint("Perpendicular", 25, 29))
sketch1.addConstraint(Sketcher.Constraint("Horizontal", 34, 2, 55, 2))
sketch1.addConstraint(Sketcher.Constraint("Horizontal", 20, 2, 69, 2))
sketch1.addConstraint(Sketcher.Constraint("Vertical", 16, 2, 37, 2))
sketch1.addConstraint(Sketcher.Constraint("Equal", 70, 2))
sketch1.addConstraint(Sketcher.Constraint("Equal", 67, 5))
sketch1.addConstraint(Sketcher.Constraint("Equal", 53, 19))
sketch1.addConstraint(Sketcher.Constraint("Equal", 51, 21))
sketch1.addConstraint(Sketcher.Constraint("Equal", 45, 27))
sketch1.addConstraint(Sketcher.Constraint("Equal", 11, 25))
sketch1.addConstraint(Sketcher.Constraint("Radius", 0, 2.0))
sketch1.addConstraint(Sketcher.Constraint("Diameter", 72, 5.2))
sketch1.addConstraint(Sketcher.Constraint("Radius", 4, 0.5))
sketch1.addConstraint(Sketcher.Constraint("DistanceY", 0, 2, -1, 1, 10.0))
sketch1.addConstraint(Sketcher.Constraint("DistanceX", 20, 2, 20, 1, 1.35))
sketch1.addConstraint(Sketcher.Constraint("DistanceX", 1, 2, -1, 1, 3.2))
sketch1.addConstraint(Sketcher.Constraint("DistanceX", 4, 1, -1, 1, 5.1))
sketch1.addConstraint(Sketcher.Constraint("DistanceY", 8, 3, -1, 1, 5.9))
sketch1.addConstraint(Sketcher.Constraint("DistanceX", 9, 1, 9, 2, 4.0218))
sketch1.setExpression("Constraints[164]", "Params.sketch1_radius")
sketch1.setExpression("Constraints[165]", "Params.sketch1_diameter")
sketch1.setExpression("Constraints[166]", "Params.sketch1_radius2")
sketch1.setExpression("Constraints[168]", "Params.sketch1_width")
pad1 = body.newObject("PartDesign::Pad", "Pad")
pad1.Profile = sketch1
pad1.setExpression("Length", "Params.pad1_length")
pad1.Midplane = True

doc.recompute()
